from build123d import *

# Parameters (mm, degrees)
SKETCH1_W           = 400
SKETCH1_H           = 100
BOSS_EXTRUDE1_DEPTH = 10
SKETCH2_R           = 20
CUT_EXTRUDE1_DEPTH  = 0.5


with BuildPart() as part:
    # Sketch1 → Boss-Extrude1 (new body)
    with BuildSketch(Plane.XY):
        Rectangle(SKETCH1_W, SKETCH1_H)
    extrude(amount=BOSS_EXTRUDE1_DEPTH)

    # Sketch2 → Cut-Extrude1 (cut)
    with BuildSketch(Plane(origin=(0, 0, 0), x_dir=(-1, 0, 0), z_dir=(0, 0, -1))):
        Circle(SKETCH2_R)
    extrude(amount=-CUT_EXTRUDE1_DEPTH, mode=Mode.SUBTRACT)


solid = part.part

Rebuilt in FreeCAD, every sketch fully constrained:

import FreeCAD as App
import Part
import Sketcher
from FreeCAD import Vector
Q = App.Units.Quantity


def add_polygon(sketch, points):
    """Adds a closed chain of lines whose ends are joined by coincident constraints."""
    first, n = sketch.GeometryCount, len(points)
    for a, b in zip(points, points[1:] + points[:1]):
        sketch.addGeometry(Part.LineSegment(App.Vector(*a, 0), App.Vector(*b, 0)), False)
    for i in range(n):
        sketch.addConstraint(Sketcher.Constraint("Coincident", first + i, 2, first + (i + 1) % n, 1))

doc = App.newDocument("Part")
body = doc.addObject("PartDesign::Body", "Body")

# Sketch on XY plane
sketch1 = body.newObject("Sketcher::SketchObject", "Sketch")
sketch1.AttachmentSupport = (doc.getObject("XY_Plane"), [""])
sketch1.MapMode = "FlatFace"
add_polygon(sketch1, [(-200, 50), (-200, -50), (200, -50), (200, 50)])  # lines 0-3
sketch1.addConstraint(Sketcher.Constraint("Vertical", 0))
sketch1.addConstraint(Sketcher.Constraint("Horizontal", 1))
sketch1.addConstraint(Sketcher.Constraint("Vertical", 2))
sketch1.addConstraint(Sketcher.Constraint("Horizontal", 3))
sketch1.addConstraint(Sketcher.Constraint("Symmetric", 0, 2, 2, 2, -1, 1))
sketch1.addConstraint(Sketcher.Constraint("DistanceX", 1, 1, 1, 2, Q("400 mm")))
sketch1.addConstraint(Sketcher.Constraint("DistanceY", 0, 2, 0, 1, Q("100 mm")))
pad1 = body.newObject("PartDesign::Pad", "Pad")
pad1.Profile = sketch1
pad1.Length = 10

# Sketch on XY plane
sketch2 = body.newObject("Sketcher::SketchObject", "Sketch001")
sketch2.AttachmentSupport = (doc.getObject("XY_Plane"), [""])
sketch2.MapMode = "FlatFace"
sketch2.addGeometry(Part.Circle(Vector(0, 0, 0), Vector(0, 0, 1), 20), False)
sketch2.addConstraint(Sketcher.Constraint("Coincident", 0, 3, -1, 1))
sketch2.addConstraint(Sketcher.Constraint("Diameter", 0, Q("40 mm")))
pocket1 = body.newObject("PartDesign::Pocket", "Pocket")
pocket1.Profile = sketch2
pocket1.Length = 0.5
pocket1.Reversed = True

doc.recompute()
